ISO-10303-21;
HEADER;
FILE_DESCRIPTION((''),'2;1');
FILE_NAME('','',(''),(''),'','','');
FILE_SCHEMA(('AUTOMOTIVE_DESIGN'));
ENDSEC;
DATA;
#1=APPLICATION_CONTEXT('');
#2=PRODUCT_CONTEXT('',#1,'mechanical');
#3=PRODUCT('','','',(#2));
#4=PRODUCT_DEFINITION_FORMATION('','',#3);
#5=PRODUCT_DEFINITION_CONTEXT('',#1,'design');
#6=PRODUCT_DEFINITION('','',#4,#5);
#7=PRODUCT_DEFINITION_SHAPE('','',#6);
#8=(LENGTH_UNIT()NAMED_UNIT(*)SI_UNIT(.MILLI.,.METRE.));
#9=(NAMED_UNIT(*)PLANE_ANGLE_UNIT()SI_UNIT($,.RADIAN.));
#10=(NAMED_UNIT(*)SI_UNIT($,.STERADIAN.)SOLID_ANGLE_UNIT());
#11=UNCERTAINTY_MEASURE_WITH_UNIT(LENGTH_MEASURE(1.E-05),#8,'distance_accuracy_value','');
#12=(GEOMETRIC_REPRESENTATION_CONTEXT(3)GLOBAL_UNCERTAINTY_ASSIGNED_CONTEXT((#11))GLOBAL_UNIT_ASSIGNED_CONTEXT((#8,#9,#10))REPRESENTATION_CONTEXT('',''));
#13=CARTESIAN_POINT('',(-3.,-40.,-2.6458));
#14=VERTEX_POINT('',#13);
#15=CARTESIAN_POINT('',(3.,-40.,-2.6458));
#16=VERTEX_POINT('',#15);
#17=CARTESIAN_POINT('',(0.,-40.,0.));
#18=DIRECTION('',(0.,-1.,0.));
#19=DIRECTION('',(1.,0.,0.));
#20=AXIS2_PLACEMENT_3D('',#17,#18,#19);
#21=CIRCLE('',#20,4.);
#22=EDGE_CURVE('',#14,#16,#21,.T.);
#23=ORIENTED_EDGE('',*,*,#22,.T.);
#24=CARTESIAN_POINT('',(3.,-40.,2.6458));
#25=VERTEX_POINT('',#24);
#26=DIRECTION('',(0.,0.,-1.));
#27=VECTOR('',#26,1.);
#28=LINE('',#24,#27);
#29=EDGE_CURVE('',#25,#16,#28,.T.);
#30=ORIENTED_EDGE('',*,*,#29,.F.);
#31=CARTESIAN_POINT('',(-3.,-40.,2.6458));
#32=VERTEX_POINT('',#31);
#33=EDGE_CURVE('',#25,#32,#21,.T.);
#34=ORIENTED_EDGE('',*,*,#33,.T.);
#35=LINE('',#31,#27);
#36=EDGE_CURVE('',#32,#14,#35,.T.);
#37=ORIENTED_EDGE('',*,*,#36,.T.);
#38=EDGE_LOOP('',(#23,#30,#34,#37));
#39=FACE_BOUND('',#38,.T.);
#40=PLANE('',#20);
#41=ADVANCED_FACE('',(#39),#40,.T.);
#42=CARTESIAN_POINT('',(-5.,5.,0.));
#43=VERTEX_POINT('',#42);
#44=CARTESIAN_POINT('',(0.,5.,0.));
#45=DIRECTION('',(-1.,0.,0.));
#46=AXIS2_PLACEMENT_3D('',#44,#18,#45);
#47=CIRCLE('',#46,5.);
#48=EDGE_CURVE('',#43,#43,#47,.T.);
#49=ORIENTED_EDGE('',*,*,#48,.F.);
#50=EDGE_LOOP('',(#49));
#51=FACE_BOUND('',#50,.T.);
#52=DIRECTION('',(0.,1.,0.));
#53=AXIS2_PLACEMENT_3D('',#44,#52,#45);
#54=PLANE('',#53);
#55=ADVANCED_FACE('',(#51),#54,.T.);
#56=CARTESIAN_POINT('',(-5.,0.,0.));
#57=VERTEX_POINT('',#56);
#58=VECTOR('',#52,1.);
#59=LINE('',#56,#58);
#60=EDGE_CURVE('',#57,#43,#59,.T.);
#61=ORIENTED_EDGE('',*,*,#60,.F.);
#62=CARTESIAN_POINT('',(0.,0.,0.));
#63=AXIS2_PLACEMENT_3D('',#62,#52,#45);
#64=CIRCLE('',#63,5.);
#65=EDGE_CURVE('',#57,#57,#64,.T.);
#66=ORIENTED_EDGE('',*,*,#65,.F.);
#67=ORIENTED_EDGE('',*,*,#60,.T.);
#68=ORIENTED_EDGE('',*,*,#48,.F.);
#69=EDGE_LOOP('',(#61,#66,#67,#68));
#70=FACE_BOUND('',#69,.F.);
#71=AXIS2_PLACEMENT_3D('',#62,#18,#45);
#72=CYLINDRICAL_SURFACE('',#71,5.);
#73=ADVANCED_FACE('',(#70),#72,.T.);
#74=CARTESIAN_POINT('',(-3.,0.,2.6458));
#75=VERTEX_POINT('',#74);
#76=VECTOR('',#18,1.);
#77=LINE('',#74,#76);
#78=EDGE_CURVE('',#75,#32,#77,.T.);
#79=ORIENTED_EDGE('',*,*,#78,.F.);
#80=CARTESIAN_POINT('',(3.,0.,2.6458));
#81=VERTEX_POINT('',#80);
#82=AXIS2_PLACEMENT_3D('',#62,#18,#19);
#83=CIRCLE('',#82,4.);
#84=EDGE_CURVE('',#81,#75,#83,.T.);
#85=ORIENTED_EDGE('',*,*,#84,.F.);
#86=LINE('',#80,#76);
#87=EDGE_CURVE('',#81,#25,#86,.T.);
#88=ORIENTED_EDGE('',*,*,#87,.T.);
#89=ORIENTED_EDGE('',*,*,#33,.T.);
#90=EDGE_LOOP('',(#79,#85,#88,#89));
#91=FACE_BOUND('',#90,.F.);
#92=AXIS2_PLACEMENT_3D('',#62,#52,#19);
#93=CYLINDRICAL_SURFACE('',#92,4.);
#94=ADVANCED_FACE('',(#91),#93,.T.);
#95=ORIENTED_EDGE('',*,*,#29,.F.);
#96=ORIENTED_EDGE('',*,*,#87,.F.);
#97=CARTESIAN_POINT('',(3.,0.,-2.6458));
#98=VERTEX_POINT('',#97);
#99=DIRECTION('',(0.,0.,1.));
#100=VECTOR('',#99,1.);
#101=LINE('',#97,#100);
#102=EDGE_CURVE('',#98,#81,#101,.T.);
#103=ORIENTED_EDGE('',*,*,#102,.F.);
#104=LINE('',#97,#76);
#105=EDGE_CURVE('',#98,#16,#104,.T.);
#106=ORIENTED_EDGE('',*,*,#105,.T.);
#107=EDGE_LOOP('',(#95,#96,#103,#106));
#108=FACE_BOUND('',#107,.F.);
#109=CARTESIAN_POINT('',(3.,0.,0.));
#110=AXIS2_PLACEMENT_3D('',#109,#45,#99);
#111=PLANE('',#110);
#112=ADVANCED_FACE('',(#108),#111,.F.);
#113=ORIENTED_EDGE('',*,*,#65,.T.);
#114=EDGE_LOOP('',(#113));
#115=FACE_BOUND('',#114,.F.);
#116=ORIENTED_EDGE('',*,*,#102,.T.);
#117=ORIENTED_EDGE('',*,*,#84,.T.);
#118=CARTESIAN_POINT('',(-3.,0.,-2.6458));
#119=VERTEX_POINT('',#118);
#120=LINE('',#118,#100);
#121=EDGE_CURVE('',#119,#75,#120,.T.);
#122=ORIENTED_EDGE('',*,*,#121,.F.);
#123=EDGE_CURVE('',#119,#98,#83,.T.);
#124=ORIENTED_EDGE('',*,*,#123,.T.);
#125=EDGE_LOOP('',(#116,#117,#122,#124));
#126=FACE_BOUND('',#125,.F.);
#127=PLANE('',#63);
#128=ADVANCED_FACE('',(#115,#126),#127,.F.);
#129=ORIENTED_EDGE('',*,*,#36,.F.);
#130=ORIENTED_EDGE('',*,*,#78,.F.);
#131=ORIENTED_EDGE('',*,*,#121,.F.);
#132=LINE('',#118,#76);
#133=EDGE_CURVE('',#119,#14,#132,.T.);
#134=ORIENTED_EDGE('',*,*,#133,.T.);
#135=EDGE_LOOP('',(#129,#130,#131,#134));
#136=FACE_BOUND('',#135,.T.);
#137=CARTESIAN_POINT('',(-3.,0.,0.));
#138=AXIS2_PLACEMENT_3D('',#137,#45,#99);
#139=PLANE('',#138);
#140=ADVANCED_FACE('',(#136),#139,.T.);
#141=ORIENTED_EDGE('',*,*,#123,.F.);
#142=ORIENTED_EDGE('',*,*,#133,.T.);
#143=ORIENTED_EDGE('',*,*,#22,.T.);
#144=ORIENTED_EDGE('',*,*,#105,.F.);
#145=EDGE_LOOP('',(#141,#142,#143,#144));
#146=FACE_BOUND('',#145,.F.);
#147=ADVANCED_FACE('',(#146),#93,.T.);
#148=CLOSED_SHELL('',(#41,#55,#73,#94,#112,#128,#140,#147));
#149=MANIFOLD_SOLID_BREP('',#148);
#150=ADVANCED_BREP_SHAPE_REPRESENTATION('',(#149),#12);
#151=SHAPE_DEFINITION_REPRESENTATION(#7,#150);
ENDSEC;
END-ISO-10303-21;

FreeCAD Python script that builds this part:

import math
import FreeCAD as App
import Part
import Sketcher
from FreeCAD import Vector
Q = App.Units.Quantity

doc = App.newDocument("Part")
body = doc.addObject("PartDesign::Body", "Body")

# Sketch on XZ plane
sketch1 = body.newObject("Sketcher::SketchObject", "Sketch")
sketch1.AttachmentSupport = (doc.getObject("XZ_Plane"), [""])
sketch1.MapMode = "FlatFace"
sketch1.addGeometry(Part.Circle(Vector(0, 0, 0), Vector(0, 0, 1), 5), False)
sketch1.addConstraint([
    Sketcher.Constraint("Coincident", 0, 3, -1, 1),
    Sketcher.Constraint("Diameter", 0, Q("10 mm")),
])
pad1 = body.newObject("PartDesign::Pad", "Pad")
pad1.Profile = sketch1
pad1.Length = 5
pad1.Reversed = True

# Sketch on XZ plane
sketch2 = body.newObject("Sketcher::SketchObject", "Sketch001")
sketch2.AttachmentSupport = (doc.getObject("XZ_Plane"), [""])
sketch2.MapMode = "FlatFace"
sketch2.addGeometry([
    Part.ArcOfCircle(Part.Circle(Vector(0, 0, 0), Vector(0, 0, 1), 4), math.radians(41), math.radians(139)),
    Part.LineSegment(Vector(-3, 2.6, 0), Vector(-3, -2.6, 0)),
    Part.ArcOfCircle(Part.Circle(Vector(0, 0, 0), Vector(0, 0, 1), 4), math.radians(-139), math.radians(-41)),
    Part.LineSegment(Vector(3, -2.6, 0), Vector(3, 2.6, 0)),
], False)
sketch2.addConstraint([
    Sketcher.Constraint("Coincident", 0, 2, 1, 1),
    Sketcher.Constraint("Coincident", 1, 2, 2, 1),
    Sketcher.Constraint("Coincident", 2, 2, 3, 1),
    Sketcher.Constraint("Coincident", 3, 2, 0, 1),
    Sketcher.Constraint("Vertical", 1),
    Sketcher.Constraint("Vertical", 3),
    Sketcher.Constraint("Coincident", 0, 3, -1, 1),
    Sketcher.Constraint("Coincident", 2, 3, -1, 1),
    Sketcher.Constraint("Equal", 0, 2),
    Sketcher.Constraint("Horizontal", 1, 2, 2, 2),
    Sketcher.Constraint("Radius", 0, Q("4 mm")),
    Sketcher.Constraint("DistanceX", 0, 2, -1, 1, Q("3 mm")),
])
pad2 = body.newObject("PartDesign::Pad", "Pad001")
pad2.Profile = sketch2
pad2.Length = 40

doc.recompute()
